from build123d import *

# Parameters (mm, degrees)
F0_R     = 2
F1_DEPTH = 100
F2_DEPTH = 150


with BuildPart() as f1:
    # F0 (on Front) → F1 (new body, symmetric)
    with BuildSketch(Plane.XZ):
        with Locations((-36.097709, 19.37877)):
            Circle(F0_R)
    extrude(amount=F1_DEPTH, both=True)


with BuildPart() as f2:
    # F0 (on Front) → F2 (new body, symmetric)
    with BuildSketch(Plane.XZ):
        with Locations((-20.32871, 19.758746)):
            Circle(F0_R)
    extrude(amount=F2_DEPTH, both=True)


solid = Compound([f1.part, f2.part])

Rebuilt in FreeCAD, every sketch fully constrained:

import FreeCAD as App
import Part
import Sketcher

doc = App.newDocument("Part")
body = doc.addObject("PartDesign::Body", "Body")

sketch1 = body.newObject("Sketcher::SketchObject", "Sketch")
sketch1.AttachmentSupport = (doc.getObject("XZ_Plane"), [""])
sketch1.MapMode = "FlatFace"
sketch1.addGeometry(Part.Circle(App.Vector(-36.1, 19.4, 0), App.Vector(0, 0, 1), 2), False)
sketch1.addConstraint([
    Sketcher.Constraint("Diameter", 0, 4.0),
    Sketcher.Constraint("DistanceX", 0, 3, -1, 1, 36.097709),
    Sketcher.Constraint("DistanceY", -1, 1, 0, 3, 19.37877),
])
pad1 = body.newObject("PartDesign::Pad", "Pad")
pad1.Profile = sketch1
pad1.Length = 200
pad1.Midplane = True
body2 = doc.addObject("PartDesign::Body", "Body001")

sketch2 = body2.newObject("Sketcher::SketchObject", "Sketch001")
sketch2.AttachmentSupport = (doc.getObject("XZ_Plane001"), [""])
sketch2.MapMode = "FlatFace"
sketch2.addGeometry(Part.Circle(App.Vector(-20.3, 19.8, 0), App.Vector(0, 0, 1), 2), False)
sketch2.addConstraint([
    Sketcher.Constraint("Diameter", 0, 4.0),
    Sketcher.Constraint("DistanceX", 0, 3, -1, 1, 20.32871),
    Sketcher.Constraint("DistanceY", -1, 1, 0, 3, 19.758746),
])
pad2 = body2.newObject("PartDesign::Pad", "Pad001")
pad2.Profile = sketch2
pad2.Length = 300
pad2.Midplane = True

doc.recompute()
